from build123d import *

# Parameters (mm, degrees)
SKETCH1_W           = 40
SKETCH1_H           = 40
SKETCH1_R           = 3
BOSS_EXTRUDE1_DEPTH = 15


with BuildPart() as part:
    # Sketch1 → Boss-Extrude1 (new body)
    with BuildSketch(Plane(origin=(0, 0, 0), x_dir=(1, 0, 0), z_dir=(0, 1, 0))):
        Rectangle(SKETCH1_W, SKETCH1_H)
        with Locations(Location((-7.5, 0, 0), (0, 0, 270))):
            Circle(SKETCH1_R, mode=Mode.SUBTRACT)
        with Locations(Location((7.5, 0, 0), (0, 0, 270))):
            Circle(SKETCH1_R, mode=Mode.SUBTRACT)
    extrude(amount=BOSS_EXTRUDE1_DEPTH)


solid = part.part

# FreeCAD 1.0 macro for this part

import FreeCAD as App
import Part
import Sketcher
Q = App.Units.Quantity

doc = App.newDocument("Part")
body = doc.addObject("PartDesign::Body", "Body")

sketch1 = body.newObject("Sketcher::SketchObject", "Sketch")
sketch1.AttachmentSupport = (doc.getObject("XZ_Plane"), [""])
sketch1.MapMode = "FlatFace"
sketch1.addGeometry([
    Part.LineSegment(App.Vector(-20, -20, 0), App.Vector(-20, 20, 0)),
    Part.LineSegment(App.Vector(-20, 20, 0), App.Vector(20, 20, 0)),
    Part.LineSegment(App.Vector(20, 20, 0), App.Vector(20, -20, 0)),
    Part.LineSegment(App.Vector(20, -20, 0), App.Vector(-20, -20, 0)),
    Part.Circle(App.Vector(-7.5, 0, 0), App.Vector(0, 0, 1), 3),
    Part.Circle(App.Vector(7.5, 0, 0), App.Vector(0, 0, 1), 3),
], False)
sketch1.addConstraint([
    Sketcher.Constraint("Coincident", 0, 2, 1, 1),
    Sketcher.Constraint("Coincident", 1, 2, 2, 1),
    Sketcher.Constraint("Coincident", 2, 2, 3, 1),
    Sketcher.Constraint("Coincident", 3, 2, 0, 1),
    Sketcher.Constraint("Vertical", 0),
    Sketcher.Constraint("Horizontal", 1),
    Sketcher.Constraint("Vertical", 2),
    Sketcher.Constraint("Horizontal", 3),
    Sketcher.Constraint("Equal", 4, 5),
    Sketcher.Constraint("Symmetric", 4, 3, 5, 3, -1, 1),
    Sketcher.Constraint("Symmetric", 0, 2, 2, 2, -1, 1),
    Sketcher.Constraint("PointOnObject", 4, 3, -1),
    Sketcher.Constraint("Equal", 3, 0),
    Sketcher.Constraint("Diameter", 4, Q("6 mm")),
    Sketcher.Constraint("DistanceX", 1, 1, 1, 2, Q("40 mm")),
    Sketcher.Constraint("DistanceX", 4, 3, 5, 3, Q("15 mm")),
])
pad1 = body.newObject("PartDesign::Pad", "Pad")
pad1.Profile = sketch1
pad1.Length = 15
pad1.Reversed = True

doc.recompute()
